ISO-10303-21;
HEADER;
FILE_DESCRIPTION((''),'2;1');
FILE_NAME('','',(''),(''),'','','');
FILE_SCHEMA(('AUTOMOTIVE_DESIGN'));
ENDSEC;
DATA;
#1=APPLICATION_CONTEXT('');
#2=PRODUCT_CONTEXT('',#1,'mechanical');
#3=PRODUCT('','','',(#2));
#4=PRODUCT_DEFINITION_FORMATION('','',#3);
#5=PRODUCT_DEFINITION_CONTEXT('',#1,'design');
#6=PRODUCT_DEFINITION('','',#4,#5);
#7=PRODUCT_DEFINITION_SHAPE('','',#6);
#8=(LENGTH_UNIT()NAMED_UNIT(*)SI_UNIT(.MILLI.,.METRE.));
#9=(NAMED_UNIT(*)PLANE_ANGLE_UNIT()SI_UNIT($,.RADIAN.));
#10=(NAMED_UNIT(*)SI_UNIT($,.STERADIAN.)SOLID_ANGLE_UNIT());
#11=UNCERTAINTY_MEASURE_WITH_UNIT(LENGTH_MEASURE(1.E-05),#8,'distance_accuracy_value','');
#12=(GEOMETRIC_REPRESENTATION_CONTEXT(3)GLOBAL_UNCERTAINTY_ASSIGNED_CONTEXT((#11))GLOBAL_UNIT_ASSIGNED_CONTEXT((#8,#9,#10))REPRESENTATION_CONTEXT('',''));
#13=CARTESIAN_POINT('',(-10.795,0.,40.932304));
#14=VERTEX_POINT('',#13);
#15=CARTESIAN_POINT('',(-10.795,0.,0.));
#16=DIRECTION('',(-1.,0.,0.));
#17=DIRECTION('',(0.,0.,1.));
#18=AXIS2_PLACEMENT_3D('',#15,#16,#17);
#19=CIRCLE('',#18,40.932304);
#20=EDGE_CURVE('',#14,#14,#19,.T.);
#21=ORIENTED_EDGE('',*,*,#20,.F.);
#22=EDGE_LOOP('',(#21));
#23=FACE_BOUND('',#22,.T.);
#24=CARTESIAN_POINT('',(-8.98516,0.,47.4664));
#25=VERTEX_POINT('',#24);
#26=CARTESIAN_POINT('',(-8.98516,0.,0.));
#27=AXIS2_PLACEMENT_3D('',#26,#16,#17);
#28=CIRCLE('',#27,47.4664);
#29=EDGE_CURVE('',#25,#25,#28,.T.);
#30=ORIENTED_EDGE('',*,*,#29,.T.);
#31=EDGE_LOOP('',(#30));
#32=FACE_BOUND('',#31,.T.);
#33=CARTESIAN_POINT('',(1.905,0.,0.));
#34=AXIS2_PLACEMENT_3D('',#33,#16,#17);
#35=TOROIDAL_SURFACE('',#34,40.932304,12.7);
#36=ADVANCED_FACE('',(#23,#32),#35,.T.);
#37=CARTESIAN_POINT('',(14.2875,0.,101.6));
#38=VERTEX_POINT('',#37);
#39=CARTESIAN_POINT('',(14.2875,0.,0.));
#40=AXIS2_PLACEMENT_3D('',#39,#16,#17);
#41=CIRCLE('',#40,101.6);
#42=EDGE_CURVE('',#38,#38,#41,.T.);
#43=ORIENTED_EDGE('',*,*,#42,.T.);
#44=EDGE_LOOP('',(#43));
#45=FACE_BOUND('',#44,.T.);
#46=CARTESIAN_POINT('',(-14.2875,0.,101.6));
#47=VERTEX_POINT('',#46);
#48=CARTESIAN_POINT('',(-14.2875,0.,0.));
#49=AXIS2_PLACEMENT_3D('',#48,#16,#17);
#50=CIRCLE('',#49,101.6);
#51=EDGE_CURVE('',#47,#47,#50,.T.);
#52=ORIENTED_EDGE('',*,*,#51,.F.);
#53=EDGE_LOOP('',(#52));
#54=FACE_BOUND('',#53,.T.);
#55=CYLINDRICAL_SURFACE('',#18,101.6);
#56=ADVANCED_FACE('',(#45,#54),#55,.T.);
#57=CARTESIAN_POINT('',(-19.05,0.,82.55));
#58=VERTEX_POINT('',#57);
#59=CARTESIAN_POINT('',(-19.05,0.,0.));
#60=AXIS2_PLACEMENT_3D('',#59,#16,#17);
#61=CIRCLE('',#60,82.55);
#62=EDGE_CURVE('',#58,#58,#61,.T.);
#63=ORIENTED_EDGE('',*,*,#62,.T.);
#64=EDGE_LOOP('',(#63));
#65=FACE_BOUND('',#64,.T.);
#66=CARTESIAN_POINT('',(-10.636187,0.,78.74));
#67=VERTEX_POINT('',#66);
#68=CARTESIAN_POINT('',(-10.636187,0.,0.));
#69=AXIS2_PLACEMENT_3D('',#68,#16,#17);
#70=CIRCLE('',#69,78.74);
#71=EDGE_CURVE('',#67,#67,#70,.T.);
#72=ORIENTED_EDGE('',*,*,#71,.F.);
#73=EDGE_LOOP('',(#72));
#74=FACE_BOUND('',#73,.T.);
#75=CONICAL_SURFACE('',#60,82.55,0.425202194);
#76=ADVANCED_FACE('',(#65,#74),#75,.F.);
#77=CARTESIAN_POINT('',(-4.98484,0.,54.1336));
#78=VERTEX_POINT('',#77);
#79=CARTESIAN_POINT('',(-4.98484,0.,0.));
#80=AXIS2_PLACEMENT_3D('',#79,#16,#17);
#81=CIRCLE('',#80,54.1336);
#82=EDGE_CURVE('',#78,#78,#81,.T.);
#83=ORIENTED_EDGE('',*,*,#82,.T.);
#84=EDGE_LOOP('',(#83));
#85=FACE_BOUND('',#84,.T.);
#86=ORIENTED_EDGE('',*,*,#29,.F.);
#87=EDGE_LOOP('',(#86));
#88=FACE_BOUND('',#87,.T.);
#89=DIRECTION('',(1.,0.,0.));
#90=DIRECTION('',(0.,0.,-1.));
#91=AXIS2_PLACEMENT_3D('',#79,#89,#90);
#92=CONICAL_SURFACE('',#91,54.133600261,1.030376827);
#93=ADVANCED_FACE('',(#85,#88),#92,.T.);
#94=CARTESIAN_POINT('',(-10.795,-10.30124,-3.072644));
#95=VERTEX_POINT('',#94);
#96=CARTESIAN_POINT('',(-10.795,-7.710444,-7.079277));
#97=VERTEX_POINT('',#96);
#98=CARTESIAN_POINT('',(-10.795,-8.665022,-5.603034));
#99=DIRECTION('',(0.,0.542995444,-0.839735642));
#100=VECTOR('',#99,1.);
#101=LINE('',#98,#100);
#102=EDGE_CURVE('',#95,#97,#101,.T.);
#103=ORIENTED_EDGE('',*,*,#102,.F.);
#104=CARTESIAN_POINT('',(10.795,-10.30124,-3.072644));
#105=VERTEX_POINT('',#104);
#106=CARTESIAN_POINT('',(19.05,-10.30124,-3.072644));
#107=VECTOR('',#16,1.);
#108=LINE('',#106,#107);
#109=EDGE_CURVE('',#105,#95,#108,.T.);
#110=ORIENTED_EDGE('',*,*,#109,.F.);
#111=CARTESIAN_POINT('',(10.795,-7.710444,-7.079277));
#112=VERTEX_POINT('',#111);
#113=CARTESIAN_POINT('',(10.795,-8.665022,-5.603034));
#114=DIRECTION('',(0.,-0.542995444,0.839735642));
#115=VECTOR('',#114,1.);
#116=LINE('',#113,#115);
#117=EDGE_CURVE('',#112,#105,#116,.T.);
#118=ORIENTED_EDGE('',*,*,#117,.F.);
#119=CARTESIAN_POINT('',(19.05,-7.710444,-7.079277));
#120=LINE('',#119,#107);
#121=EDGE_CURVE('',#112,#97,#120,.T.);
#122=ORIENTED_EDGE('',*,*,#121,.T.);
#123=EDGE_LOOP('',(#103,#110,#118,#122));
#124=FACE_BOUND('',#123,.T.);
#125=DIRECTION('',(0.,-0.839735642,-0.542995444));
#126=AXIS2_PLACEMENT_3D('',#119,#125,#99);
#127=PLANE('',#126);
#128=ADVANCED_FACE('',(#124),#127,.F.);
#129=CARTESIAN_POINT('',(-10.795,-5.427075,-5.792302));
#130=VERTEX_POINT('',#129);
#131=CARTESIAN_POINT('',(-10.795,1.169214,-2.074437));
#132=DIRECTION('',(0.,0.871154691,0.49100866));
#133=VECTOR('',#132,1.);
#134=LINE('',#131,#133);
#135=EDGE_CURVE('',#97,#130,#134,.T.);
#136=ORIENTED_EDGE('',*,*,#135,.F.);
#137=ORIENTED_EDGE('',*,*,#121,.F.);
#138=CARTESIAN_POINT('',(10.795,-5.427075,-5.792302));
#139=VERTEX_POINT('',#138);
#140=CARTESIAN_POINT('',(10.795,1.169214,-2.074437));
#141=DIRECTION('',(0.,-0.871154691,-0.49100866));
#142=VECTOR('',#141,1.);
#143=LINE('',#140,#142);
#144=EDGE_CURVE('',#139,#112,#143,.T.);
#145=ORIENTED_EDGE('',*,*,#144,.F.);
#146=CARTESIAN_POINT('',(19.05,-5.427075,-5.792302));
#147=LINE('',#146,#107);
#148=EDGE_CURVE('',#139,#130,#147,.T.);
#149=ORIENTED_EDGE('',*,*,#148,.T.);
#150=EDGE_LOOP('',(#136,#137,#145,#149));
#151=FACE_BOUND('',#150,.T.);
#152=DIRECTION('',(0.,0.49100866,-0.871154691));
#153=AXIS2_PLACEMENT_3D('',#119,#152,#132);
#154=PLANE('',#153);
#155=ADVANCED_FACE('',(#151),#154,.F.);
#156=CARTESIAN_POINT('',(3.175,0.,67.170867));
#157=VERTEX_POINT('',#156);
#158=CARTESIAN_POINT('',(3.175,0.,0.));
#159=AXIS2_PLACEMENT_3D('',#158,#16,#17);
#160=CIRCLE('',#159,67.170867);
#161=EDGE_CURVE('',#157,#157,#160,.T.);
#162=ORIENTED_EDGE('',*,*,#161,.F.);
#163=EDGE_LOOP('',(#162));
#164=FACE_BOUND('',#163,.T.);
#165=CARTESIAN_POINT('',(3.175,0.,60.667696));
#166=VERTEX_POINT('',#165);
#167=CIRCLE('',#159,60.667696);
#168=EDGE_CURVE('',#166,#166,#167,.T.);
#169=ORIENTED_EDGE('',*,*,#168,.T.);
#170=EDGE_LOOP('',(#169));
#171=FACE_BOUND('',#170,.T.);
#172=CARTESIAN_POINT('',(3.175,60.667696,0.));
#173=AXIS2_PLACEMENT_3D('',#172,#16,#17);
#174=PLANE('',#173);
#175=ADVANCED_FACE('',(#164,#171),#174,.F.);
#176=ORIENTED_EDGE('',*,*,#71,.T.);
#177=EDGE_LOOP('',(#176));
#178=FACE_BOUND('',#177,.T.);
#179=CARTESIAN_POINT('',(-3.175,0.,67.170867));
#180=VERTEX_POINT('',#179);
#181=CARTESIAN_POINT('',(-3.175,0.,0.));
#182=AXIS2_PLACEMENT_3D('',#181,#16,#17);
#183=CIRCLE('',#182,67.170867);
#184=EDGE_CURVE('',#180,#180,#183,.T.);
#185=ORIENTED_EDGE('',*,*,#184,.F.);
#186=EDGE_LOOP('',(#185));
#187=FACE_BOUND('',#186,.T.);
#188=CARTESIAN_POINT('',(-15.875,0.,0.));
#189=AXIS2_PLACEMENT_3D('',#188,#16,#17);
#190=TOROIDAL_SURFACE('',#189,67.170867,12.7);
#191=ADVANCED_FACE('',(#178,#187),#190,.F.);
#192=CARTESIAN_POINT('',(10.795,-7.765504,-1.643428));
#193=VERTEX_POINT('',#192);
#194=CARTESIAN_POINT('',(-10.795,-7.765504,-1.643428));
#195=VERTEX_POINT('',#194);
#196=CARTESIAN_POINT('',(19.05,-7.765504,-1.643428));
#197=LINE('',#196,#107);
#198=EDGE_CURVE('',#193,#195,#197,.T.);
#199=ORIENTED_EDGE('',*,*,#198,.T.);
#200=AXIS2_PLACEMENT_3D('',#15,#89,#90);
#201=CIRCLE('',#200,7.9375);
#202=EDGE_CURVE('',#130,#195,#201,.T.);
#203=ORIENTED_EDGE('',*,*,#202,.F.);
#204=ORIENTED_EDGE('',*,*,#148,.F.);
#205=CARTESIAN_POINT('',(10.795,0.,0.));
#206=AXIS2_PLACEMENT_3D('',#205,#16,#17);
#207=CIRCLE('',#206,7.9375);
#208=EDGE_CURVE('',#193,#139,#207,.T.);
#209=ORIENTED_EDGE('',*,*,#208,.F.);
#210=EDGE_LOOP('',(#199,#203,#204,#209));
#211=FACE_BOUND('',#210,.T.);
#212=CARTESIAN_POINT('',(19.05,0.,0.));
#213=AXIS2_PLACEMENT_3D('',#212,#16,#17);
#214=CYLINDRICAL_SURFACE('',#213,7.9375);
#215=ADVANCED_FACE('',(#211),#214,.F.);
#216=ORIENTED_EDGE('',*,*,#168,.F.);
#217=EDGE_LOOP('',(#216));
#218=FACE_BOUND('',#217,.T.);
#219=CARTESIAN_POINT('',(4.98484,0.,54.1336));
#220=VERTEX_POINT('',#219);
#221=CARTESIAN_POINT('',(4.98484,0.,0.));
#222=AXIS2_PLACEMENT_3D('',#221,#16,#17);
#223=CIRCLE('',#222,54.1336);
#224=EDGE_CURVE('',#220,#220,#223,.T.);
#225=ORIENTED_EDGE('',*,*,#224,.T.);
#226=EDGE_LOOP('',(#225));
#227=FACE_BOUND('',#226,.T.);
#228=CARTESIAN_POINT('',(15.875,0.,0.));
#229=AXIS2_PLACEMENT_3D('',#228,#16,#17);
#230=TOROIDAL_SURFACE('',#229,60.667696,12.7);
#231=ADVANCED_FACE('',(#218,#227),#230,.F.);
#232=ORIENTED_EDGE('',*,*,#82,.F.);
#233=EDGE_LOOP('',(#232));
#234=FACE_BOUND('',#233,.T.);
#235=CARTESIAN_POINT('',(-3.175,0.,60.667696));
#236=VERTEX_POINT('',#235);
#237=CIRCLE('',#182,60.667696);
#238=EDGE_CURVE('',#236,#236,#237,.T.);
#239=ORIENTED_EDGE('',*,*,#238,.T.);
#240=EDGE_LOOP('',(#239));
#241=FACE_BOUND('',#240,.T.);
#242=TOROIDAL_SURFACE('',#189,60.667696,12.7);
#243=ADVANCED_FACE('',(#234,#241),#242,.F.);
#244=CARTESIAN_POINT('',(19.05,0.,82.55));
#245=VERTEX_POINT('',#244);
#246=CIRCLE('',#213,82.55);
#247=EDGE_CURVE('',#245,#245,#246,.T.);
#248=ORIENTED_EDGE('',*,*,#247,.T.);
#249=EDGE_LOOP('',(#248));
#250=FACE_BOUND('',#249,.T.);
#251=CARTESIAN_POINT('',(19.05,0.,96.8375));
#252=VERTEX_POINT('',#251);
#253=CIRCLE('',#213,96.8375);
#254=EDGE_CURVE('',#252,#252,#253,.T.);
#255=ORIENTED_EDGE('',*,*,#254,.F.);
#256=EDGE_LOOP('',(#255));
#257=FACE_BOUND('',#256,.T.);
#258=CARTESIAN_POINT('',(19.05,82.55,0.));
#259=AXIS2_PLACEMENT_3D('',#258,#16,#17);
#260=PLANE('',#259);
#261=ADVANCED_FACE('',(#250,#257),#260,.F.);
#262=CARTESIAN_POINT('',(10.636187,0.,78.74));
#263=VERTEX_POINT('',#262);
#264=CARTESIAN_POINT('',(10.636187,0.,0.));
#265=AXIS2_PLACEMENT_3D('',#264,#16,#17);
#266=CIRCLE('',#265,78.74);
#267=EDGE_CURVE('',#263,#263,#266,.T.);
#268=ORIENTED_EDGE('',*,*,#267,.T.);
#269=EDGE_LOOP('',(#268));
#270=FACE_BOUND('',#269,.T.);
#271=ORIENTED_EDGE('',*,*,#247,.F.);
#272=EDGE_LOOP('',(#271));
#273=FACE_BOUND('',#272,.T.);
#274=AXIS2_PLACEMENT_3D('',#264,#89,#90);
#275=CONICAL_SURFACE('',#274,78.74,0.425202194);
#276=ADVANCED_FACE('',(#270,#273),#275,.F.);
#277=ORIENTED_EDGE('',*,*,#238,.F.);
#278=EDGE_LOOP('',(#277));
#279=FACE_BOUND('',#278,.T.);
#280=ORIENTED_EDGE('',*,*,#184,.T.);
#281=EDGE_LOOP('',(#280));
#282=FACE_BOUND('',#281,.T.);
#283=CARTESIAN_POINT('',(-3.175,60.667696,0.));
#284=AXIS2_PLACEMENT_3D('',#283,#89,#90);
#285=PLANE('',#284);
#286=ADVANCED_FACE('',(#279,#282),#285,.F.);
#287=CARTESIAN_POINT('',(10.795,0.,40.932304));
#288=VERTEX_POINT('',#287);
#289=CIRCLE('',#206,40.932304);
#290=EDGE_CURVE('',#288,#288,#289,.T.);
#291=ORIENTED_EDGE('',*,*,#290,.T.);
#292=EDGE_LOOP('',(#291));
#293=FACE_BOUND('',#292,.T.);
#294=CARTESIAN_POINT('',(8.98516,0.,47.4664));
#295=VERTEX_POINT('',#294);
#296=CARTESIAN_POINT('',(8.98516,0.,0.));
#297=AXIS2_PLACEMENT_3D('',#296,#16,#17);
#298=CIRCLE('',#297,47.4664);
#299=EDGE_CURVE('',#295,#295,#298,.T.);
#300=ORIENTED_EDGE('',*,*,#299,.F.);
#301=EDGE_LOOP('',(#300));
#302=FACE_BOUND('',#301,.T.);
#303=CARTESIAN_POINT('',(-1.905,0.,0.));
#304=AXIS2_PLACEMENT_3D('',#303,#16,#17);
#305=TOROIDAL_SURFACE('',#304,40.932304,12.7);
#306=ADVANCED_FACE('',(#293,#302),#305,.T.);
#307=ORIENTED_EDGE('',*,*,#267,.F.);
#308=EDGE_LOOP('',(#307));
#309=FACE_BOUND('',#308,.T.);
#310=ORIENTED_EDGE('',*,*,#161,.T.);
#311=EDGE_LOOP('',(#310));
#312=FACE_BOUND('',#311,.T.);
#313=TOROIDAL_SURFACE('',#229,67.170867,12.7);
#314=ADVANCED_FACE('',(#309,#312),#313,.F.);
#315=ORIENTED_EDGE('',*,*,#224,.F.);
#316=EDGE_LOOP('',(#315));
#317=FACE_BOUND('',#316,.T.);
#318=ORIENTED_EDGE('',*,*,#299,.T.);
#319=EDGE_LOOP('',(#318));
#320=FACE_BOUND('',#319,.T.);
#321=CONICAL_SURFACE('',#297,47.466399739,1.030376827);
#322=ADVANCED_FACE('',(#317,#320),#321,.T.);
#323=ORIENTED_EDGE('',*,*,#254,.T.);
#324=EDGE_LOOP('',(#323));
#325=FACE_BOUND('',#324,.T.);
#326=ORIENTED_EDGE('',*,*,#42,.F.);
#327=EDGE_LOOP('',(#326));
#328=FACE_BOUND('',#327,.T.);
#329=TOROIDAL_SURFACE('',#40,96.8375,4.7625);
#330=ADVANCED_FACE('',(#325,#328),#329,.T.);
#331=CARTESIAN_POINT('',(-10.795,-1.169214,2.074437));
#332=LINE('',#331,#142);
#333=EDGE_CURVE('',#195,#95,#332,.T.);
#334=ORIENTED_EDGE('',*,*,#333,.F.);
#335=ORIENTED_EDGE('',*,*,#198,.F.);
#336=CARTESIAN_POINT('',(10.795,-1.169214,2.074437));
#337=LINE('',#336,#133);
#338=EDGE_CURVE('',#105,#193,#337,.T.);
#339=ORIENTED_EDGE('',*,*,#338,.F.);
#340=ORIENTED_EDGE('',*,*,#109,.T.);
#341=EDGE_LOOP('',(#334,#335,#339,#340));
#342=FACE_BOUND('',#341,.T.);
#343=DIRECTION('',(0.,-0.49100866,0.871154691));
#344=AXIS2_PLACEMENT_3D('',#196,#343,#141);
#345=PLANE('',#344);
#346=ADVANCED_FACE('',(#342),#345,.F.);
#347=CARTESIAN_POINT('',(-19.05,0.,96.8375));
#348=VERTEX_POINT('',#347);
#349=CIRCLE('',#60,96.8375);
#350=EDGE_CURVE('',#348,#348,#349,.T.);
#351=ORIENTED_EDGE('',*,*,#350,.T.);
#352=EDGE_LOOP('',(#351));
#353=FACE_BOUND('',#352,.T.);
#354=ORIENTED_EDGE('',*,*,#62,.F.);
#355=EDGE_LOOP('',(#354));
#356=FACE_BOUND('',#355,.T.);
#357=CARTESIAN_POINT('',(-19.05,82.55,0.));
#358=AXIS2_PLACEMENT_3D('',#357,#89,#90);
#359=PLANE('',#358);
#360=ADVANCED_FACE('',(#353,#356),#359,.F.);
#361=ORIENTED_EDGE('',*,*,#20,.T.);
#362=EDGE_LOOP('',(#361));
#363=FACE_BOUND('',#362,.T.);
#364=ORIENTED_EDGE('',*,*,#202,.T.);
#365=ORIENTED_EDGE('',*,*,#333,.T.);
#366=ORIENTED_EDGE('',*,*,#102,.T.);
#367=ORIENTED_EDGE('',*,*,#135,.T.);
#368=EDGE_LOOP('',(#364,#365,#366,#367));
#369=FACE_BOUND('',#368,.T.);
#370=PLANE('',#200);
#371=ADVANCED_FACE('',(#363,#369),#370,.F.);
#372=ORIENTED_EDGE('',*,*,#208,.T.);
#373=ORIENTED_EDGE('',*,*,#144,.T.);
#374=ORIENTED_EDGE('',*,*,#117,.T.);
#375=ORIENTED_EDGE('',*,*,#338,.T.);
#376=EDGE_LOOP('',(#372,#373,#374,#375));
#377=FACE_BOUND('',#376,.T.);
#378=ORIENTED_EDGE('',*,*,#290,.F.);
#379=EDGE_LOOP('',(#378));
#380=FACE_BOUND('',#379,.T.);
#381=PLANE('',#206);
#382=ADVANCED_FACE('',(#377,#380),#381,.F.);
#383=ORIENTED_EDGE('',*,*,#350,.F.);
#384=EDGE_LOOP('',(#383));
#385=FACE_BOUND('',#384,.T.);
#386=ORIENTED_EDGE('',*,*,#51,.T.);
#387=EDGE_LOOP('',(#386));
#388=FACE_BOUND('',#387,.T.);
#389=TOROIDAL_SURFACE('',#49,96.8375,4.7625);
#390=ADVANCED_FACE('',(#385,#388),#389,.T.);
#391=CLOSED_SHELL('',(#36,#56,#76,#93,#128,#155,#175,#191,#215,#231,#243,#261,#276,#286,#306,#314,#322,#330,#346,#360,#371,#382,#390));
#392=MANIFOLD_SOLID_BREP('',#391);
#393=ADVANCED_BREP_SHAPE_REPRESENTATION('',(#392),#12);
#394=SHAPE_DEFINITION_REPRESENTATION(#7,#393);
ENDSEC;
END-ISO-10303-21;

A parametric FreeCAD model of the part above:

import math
import FreeCAD as App
import Part
import Sketcher
Q = App.Units.Quantity

doc = App.newDocument("Part")
params = doc.addObject("Spreadsheet::Sheet", "Params")
for row, (alias, value) in enumerate([
    ("sketch1_radius", "0.5 in"),
    ("sketch1_radius2", "0.1875 in"),
    ("sketch1_width", "0.85 in"),
    ("sketch1_width2", "1.125 in"),
    ("sketch1_height", "0.5625 in"),
    ("revolution_angle", "360 deg"),
    ("sketch2_radius", "0.3125 in"),
], start=1):
    params.set(f"A{row}", alias)
    params.set(f"B{row}", "=" + value)
    params.setAlias(f"B{row}", alias)

body = doc.addObject("PartDesign::Body", "Body")

# Sketch on XY plane
sketch1 = body.newObject("Sketcher::SketchObject", "Sketch")
sketch1.AttachmentSupport = (doc.getObject("XY_Plane"), [""])
sketch1.MapMode = "FlatFace"
sketch1.addGeometry([
    Part.LineSegment(App.Vector(-10.795, 40.932304, 0), App.Vector(-10.795, 0, 0)),  # 0
    Part.LineSegment(App.Vector(-10.795, 0, 0), App.Vector(10.795, 0, 0)),  # 1
    Part.LineSegment(App.Vector(10.795, 0, 0), App.Vector(10.795, 40.932304, 0)),  # 2
    Part.ArcOfCircle(Part.Circle(App.Vector(-1.905, 40.932304, 0), App.Vector(0, 0, 1), 12.7), math.radians(0), math.radians(30.963757)),  # 3
    Part.LineSegment(App.Vector(8.98516, 47.4664, 0), App.Vector(4.98484, 54.1336, 0)),  # 4
    Part.ArcOfCircle(Part.Circle(App.Vector(15.875, 60.667696, 0), App.Vector(0, 0, 1), 12.7), math.radians(-180), math.radians(-149.036243)),  # 5
    Part.LineSegment(App.Vector(3.175, 60.667696, 0), App.Vector(3.175, 67.170867, 0)),  # 6
    Part.ArcOfCircle(Part.Circle(App.Vector(15.875, 67.170867, 0), App.Vector(0, 0, 1), 12.7), math.radians(114.362291), math.radians(180)),  # 7
    Part.LineSegment(App.Vector(10.636187, 78.74, 0), App.Vector(19.05, 82.55, 0)),  # 8
    Part.LineSegment(App.Vector(19.05, 82.55, 0), App.Vector(19.05, 96.8375, 0)),  # 9
    Part.ArcOfCircle(Part.Circle(App.Vector(14.2875, 96.8375, 0), App.Vector(0, 0, 1), 4.7625), math.radians(0), math.radians(90)),  # 10
    Part.LineSegment(App.Vector(14.2875, 101.6, 0), App.Vector(-14.2875, 101.6, 0)),  # 11
    Part.ArcOfCircle(Part.Circle(App.Vector(-14.2875, 96.8375, 0), App.Vector(0, 0, 1), 4.7625), math.radians(90), math.radians(180)),  # 12
    Part.LineSegment(App.Vector(-19.05, 96.8375, 0), App.Vector(-19.05, 82.55, 0)),  # 13
    Part.LineSegment(App.Vector(-19.05, 82.55, 0), App.Vector(-10.636187, 78.74, 0)),  # 14
    Part.ArcOfCircle(Part.Circle(App.Vector(-15.875, 67.170867, 0), App.Vector(0, 0, 1), 12.7), math.radians(0), math.radians(65.637709)),  # 15
    Part.LineSegment(App.Vector(-3.175, 67.170867, 0), App.Vector(-3.175, 60.667696, 0)),  # 16
    Part.ArcOfCircle(Part.Circle(App.Vector(-15.875, 60.667696, 0), App.Vector(0, 0, 1), 12.7), math.radians(-30.963757), math.radians(0)),  # 17
    Part.LineSegment(App.Vector(-4.98484, 54.1336, 0), App.Vector(-8.98516, 47.4664, 0)),  # 18
    Part.ArcOfCircle(Part.Circle(App.Vector(1.905, 40.932304, 0), App.Vector(0, 0, 1), 12.7), math.radians(149.036243), math.radians(180)),  # 19
], False)
sketch1.addConstraint([
    Sketcher.Constraint("Coincident", 0, 2, 1, 1),
    Sketcher.Constraint("Coincident", 1, 2, 2, 1),
    Sketcher.Constraint("Tangent", 2, 2, 3, 1),
    Sketcher.Constraint("Tangent", 3, 2, 4, 1),
    Sketcher.Constraint("Tangent", 4, 2, 5, 2),
    Sketcher.Constraint("Tangent", 5, 1, 6, 1),
    Sketcher.Constraint("Tangent", 6, 2, 7, 2),
    Sketcher.Constraint("Tangent", 7, 1, 8, 1),
    Sketcher.Constraint("Coincident", 8, 2, 9, 1),
    Sketcher.Constraint("Tangent", 9, 2, 10, 1),
    Sketcher.Constraint("Tangent", 10, 2, 11, 1),
    Sketcher.Constraint("Tangent", 11, 2, 12, 1),
    Sketcher.Constraint("Tangent", 12, 2, 13, 1),
    Sketcher.Constraint("Coincident", 13, 2, 14, 1),
    Sketcher.Constraint("Tangent", 14, 2, 15, 2),
    Sketcher.Constraint("Tangent", 15, 1, 16, 1),
    Sketcher.Constraint("Tangent", 16, 2, 17, 2),
    Sketcher.Constraint("Tangent", 17, 1, 18, 1),
    Sketcher.Constraint("Tangent", 18, 2, 19, 1),
    Sketcher.Constraint("Tangent", 19, 2, 0, 1),
    Sketcher.Constraint("Vertical", 0),
    Sketcher.Constraint("Horizontal", 1),
    Sketcher.Constraint("Vertical", 2),
    Sketcher.Constraint("Vertical", 6),
    Sketcher.Constraint("Vertical", 9),
    Sketcher.Constraint("Horizontal", 11),
    Sketcher.Constraint("Vertical", 13),
    Sketcher.Constraint("Vertical", 16),
    Sketcher.Constraint("Equal", 3, 5),
    Sketcher.Constraint("Equal", 5, 7),
    Sketcher.Constraint("Equal", 10, 12),
    Sketcher.Constraint("Equal", 7, 15),
    Sketcher.Constraint("Equal", 15, 17),
    Sketcher.Constraint("Equal", 17, 19),
    Sketcher.Constraint("Symmetric", 0, 2, 1, 2, -1, 1),
    Sketcher.Constraint("Symmetric", 7, 3, 15, 3, -2),
    Sketcher.Constraint("Symmetric", 8, 2, 13, 2, -2),
    Sketcher.Constraint("Symmetric", 4, 2, 17, 1, -2),
    Sketcher.Constraint("Radius", 3, Q("0.5 in")),
    Sketcher.Constraint("DistanceY", -1, 1, 10, 2, Q("4 in")),
    Sketcher.Constraint("Radius", 10, Q("0.1875 in")),
    Sketcher.Constraint("DistanceX", 1, 1, 1, 2, Q("0.85 in")),
    Sketcher.Constraint("DistanceY", -1, 1, 7, 1, Q("3.1 in")),
    Sketcher.Constraint("DistanceX", 3, 3, 5, 3, Q("0.7 in")),
    Sketcher.Constraint("DistanceX", 11, 2, 11, 1, Q("1.125 in")),
    Sketcher.Constraint("DistanceY", 9, 1, 9, 2, Q("0.5625 in")),
    Sketcher.Constraint("DistanceY", 6, 1, 6, 2, Q("6.503171 mm")),
    Sketcher.Constraint("DistanceY", -1, 1, 3, 2, Q("47.4664 mm")),
])
sketch1.setExpression("Constraints[38]", "Params.sketch1_radius")
sketch1.setExpression("Constraints[40]", "Params.sketch1_radius2")
sketch1.setExpression("Constraints[41]", "Params.sketch1_width")
sketch1.setExpression("Constraints[44]", "Params.sketch1_width2")
sketch1.setExpression("Constraints[45]", "Params.sketch1_height")
revolution = body.newObject("PartDesign::Revolution", "Revolution")
revolution.Profile = sketch1
revolution.ReferenceAxis = (sketch1, ["H_Axis"])
revolution.setExpression("Angle", "Params.revolution_angle")

# Sketch on YZ plane
sketch2 = body.newObject("Sketcher::SketchObject", "Sketch001")
sketch2.AttachmentSupport = (doc.getObject("YZ_Plane"), [""])
sketch2.MapMode = "FlatFace"
sketch2.AttachmentOffset = App.Placement(App.Vector(0, 0, -0.425 * 25.4), App.Rotation())
sketch2.addGeometry([
    Part.LineSegment(App.Vector(-7.710444, -7.079277, 0), App.Vector(-10.30124, -3.072644, 0)),
    Part.LineSegment(App.Vector(-10.30124, -3.072644, 0), App.Vector(-7.765504, -1.643428, 0)),
    Part.ArcOfCircle(Part.Circle(App.Vector(0, 0, 0), App.Vector(0, 0, 1), 7.9375), math.radians(-133.135497), math.radians(191.949296)),
    Part.LineSegment(App.Vector(-5.427075, -5.792302, 0), App.Vector(-7.710444, -7.079277, 0)),
], False)
sketch2.addConstraint([
    Sketcher.Constraint("Coincident", 0, 2, 1, 1),
    Sketcher.Constraint("Coincident", 1, 2, 2, 2),
    Sketcher.Constraint("Coincident", 2, 1, 3, 1),
    Sketcher.Constraint("Coincident", 3, 2, 0, 1),
    Sketcher.Constraint("Coincident", 2, 3, -1, 1),
    Sketcher.Constraint("Parallel", 1, 3),
    Sketcher.Constraint("Radius", 2, Q("0.3125 in")),
    Sketcher.Constraint("DistanceX", 0, 2, 3, 2, Q("0.1019998 in")),
    Sketcher.Constraint("DistanceY", 2, 1, -1, 1, Q("5.792302 mm")),
    Sketcher.Constraint("DistanceX", 0, 2, -1, 1, Q("10.30124 mm")),
    Sketcher.Constraint("DistanceX", 1, 2, 2, 1, Q("2.338429 mm")),
    Sketcher.Constraint("DistanceY", 2, 1, 0, 2, Q("2.719658 mm")),
])
sketch2.setExpression("Constraints[6]", "Params.sketch2_radius")
pocket1 = body.newObject("PartDesign::Pocket", "Pocket")
pocket1.Profile = sketch2
pocket1.Type = "ThroughAll"
pocket1.Midplane = True

doc.recompute()
